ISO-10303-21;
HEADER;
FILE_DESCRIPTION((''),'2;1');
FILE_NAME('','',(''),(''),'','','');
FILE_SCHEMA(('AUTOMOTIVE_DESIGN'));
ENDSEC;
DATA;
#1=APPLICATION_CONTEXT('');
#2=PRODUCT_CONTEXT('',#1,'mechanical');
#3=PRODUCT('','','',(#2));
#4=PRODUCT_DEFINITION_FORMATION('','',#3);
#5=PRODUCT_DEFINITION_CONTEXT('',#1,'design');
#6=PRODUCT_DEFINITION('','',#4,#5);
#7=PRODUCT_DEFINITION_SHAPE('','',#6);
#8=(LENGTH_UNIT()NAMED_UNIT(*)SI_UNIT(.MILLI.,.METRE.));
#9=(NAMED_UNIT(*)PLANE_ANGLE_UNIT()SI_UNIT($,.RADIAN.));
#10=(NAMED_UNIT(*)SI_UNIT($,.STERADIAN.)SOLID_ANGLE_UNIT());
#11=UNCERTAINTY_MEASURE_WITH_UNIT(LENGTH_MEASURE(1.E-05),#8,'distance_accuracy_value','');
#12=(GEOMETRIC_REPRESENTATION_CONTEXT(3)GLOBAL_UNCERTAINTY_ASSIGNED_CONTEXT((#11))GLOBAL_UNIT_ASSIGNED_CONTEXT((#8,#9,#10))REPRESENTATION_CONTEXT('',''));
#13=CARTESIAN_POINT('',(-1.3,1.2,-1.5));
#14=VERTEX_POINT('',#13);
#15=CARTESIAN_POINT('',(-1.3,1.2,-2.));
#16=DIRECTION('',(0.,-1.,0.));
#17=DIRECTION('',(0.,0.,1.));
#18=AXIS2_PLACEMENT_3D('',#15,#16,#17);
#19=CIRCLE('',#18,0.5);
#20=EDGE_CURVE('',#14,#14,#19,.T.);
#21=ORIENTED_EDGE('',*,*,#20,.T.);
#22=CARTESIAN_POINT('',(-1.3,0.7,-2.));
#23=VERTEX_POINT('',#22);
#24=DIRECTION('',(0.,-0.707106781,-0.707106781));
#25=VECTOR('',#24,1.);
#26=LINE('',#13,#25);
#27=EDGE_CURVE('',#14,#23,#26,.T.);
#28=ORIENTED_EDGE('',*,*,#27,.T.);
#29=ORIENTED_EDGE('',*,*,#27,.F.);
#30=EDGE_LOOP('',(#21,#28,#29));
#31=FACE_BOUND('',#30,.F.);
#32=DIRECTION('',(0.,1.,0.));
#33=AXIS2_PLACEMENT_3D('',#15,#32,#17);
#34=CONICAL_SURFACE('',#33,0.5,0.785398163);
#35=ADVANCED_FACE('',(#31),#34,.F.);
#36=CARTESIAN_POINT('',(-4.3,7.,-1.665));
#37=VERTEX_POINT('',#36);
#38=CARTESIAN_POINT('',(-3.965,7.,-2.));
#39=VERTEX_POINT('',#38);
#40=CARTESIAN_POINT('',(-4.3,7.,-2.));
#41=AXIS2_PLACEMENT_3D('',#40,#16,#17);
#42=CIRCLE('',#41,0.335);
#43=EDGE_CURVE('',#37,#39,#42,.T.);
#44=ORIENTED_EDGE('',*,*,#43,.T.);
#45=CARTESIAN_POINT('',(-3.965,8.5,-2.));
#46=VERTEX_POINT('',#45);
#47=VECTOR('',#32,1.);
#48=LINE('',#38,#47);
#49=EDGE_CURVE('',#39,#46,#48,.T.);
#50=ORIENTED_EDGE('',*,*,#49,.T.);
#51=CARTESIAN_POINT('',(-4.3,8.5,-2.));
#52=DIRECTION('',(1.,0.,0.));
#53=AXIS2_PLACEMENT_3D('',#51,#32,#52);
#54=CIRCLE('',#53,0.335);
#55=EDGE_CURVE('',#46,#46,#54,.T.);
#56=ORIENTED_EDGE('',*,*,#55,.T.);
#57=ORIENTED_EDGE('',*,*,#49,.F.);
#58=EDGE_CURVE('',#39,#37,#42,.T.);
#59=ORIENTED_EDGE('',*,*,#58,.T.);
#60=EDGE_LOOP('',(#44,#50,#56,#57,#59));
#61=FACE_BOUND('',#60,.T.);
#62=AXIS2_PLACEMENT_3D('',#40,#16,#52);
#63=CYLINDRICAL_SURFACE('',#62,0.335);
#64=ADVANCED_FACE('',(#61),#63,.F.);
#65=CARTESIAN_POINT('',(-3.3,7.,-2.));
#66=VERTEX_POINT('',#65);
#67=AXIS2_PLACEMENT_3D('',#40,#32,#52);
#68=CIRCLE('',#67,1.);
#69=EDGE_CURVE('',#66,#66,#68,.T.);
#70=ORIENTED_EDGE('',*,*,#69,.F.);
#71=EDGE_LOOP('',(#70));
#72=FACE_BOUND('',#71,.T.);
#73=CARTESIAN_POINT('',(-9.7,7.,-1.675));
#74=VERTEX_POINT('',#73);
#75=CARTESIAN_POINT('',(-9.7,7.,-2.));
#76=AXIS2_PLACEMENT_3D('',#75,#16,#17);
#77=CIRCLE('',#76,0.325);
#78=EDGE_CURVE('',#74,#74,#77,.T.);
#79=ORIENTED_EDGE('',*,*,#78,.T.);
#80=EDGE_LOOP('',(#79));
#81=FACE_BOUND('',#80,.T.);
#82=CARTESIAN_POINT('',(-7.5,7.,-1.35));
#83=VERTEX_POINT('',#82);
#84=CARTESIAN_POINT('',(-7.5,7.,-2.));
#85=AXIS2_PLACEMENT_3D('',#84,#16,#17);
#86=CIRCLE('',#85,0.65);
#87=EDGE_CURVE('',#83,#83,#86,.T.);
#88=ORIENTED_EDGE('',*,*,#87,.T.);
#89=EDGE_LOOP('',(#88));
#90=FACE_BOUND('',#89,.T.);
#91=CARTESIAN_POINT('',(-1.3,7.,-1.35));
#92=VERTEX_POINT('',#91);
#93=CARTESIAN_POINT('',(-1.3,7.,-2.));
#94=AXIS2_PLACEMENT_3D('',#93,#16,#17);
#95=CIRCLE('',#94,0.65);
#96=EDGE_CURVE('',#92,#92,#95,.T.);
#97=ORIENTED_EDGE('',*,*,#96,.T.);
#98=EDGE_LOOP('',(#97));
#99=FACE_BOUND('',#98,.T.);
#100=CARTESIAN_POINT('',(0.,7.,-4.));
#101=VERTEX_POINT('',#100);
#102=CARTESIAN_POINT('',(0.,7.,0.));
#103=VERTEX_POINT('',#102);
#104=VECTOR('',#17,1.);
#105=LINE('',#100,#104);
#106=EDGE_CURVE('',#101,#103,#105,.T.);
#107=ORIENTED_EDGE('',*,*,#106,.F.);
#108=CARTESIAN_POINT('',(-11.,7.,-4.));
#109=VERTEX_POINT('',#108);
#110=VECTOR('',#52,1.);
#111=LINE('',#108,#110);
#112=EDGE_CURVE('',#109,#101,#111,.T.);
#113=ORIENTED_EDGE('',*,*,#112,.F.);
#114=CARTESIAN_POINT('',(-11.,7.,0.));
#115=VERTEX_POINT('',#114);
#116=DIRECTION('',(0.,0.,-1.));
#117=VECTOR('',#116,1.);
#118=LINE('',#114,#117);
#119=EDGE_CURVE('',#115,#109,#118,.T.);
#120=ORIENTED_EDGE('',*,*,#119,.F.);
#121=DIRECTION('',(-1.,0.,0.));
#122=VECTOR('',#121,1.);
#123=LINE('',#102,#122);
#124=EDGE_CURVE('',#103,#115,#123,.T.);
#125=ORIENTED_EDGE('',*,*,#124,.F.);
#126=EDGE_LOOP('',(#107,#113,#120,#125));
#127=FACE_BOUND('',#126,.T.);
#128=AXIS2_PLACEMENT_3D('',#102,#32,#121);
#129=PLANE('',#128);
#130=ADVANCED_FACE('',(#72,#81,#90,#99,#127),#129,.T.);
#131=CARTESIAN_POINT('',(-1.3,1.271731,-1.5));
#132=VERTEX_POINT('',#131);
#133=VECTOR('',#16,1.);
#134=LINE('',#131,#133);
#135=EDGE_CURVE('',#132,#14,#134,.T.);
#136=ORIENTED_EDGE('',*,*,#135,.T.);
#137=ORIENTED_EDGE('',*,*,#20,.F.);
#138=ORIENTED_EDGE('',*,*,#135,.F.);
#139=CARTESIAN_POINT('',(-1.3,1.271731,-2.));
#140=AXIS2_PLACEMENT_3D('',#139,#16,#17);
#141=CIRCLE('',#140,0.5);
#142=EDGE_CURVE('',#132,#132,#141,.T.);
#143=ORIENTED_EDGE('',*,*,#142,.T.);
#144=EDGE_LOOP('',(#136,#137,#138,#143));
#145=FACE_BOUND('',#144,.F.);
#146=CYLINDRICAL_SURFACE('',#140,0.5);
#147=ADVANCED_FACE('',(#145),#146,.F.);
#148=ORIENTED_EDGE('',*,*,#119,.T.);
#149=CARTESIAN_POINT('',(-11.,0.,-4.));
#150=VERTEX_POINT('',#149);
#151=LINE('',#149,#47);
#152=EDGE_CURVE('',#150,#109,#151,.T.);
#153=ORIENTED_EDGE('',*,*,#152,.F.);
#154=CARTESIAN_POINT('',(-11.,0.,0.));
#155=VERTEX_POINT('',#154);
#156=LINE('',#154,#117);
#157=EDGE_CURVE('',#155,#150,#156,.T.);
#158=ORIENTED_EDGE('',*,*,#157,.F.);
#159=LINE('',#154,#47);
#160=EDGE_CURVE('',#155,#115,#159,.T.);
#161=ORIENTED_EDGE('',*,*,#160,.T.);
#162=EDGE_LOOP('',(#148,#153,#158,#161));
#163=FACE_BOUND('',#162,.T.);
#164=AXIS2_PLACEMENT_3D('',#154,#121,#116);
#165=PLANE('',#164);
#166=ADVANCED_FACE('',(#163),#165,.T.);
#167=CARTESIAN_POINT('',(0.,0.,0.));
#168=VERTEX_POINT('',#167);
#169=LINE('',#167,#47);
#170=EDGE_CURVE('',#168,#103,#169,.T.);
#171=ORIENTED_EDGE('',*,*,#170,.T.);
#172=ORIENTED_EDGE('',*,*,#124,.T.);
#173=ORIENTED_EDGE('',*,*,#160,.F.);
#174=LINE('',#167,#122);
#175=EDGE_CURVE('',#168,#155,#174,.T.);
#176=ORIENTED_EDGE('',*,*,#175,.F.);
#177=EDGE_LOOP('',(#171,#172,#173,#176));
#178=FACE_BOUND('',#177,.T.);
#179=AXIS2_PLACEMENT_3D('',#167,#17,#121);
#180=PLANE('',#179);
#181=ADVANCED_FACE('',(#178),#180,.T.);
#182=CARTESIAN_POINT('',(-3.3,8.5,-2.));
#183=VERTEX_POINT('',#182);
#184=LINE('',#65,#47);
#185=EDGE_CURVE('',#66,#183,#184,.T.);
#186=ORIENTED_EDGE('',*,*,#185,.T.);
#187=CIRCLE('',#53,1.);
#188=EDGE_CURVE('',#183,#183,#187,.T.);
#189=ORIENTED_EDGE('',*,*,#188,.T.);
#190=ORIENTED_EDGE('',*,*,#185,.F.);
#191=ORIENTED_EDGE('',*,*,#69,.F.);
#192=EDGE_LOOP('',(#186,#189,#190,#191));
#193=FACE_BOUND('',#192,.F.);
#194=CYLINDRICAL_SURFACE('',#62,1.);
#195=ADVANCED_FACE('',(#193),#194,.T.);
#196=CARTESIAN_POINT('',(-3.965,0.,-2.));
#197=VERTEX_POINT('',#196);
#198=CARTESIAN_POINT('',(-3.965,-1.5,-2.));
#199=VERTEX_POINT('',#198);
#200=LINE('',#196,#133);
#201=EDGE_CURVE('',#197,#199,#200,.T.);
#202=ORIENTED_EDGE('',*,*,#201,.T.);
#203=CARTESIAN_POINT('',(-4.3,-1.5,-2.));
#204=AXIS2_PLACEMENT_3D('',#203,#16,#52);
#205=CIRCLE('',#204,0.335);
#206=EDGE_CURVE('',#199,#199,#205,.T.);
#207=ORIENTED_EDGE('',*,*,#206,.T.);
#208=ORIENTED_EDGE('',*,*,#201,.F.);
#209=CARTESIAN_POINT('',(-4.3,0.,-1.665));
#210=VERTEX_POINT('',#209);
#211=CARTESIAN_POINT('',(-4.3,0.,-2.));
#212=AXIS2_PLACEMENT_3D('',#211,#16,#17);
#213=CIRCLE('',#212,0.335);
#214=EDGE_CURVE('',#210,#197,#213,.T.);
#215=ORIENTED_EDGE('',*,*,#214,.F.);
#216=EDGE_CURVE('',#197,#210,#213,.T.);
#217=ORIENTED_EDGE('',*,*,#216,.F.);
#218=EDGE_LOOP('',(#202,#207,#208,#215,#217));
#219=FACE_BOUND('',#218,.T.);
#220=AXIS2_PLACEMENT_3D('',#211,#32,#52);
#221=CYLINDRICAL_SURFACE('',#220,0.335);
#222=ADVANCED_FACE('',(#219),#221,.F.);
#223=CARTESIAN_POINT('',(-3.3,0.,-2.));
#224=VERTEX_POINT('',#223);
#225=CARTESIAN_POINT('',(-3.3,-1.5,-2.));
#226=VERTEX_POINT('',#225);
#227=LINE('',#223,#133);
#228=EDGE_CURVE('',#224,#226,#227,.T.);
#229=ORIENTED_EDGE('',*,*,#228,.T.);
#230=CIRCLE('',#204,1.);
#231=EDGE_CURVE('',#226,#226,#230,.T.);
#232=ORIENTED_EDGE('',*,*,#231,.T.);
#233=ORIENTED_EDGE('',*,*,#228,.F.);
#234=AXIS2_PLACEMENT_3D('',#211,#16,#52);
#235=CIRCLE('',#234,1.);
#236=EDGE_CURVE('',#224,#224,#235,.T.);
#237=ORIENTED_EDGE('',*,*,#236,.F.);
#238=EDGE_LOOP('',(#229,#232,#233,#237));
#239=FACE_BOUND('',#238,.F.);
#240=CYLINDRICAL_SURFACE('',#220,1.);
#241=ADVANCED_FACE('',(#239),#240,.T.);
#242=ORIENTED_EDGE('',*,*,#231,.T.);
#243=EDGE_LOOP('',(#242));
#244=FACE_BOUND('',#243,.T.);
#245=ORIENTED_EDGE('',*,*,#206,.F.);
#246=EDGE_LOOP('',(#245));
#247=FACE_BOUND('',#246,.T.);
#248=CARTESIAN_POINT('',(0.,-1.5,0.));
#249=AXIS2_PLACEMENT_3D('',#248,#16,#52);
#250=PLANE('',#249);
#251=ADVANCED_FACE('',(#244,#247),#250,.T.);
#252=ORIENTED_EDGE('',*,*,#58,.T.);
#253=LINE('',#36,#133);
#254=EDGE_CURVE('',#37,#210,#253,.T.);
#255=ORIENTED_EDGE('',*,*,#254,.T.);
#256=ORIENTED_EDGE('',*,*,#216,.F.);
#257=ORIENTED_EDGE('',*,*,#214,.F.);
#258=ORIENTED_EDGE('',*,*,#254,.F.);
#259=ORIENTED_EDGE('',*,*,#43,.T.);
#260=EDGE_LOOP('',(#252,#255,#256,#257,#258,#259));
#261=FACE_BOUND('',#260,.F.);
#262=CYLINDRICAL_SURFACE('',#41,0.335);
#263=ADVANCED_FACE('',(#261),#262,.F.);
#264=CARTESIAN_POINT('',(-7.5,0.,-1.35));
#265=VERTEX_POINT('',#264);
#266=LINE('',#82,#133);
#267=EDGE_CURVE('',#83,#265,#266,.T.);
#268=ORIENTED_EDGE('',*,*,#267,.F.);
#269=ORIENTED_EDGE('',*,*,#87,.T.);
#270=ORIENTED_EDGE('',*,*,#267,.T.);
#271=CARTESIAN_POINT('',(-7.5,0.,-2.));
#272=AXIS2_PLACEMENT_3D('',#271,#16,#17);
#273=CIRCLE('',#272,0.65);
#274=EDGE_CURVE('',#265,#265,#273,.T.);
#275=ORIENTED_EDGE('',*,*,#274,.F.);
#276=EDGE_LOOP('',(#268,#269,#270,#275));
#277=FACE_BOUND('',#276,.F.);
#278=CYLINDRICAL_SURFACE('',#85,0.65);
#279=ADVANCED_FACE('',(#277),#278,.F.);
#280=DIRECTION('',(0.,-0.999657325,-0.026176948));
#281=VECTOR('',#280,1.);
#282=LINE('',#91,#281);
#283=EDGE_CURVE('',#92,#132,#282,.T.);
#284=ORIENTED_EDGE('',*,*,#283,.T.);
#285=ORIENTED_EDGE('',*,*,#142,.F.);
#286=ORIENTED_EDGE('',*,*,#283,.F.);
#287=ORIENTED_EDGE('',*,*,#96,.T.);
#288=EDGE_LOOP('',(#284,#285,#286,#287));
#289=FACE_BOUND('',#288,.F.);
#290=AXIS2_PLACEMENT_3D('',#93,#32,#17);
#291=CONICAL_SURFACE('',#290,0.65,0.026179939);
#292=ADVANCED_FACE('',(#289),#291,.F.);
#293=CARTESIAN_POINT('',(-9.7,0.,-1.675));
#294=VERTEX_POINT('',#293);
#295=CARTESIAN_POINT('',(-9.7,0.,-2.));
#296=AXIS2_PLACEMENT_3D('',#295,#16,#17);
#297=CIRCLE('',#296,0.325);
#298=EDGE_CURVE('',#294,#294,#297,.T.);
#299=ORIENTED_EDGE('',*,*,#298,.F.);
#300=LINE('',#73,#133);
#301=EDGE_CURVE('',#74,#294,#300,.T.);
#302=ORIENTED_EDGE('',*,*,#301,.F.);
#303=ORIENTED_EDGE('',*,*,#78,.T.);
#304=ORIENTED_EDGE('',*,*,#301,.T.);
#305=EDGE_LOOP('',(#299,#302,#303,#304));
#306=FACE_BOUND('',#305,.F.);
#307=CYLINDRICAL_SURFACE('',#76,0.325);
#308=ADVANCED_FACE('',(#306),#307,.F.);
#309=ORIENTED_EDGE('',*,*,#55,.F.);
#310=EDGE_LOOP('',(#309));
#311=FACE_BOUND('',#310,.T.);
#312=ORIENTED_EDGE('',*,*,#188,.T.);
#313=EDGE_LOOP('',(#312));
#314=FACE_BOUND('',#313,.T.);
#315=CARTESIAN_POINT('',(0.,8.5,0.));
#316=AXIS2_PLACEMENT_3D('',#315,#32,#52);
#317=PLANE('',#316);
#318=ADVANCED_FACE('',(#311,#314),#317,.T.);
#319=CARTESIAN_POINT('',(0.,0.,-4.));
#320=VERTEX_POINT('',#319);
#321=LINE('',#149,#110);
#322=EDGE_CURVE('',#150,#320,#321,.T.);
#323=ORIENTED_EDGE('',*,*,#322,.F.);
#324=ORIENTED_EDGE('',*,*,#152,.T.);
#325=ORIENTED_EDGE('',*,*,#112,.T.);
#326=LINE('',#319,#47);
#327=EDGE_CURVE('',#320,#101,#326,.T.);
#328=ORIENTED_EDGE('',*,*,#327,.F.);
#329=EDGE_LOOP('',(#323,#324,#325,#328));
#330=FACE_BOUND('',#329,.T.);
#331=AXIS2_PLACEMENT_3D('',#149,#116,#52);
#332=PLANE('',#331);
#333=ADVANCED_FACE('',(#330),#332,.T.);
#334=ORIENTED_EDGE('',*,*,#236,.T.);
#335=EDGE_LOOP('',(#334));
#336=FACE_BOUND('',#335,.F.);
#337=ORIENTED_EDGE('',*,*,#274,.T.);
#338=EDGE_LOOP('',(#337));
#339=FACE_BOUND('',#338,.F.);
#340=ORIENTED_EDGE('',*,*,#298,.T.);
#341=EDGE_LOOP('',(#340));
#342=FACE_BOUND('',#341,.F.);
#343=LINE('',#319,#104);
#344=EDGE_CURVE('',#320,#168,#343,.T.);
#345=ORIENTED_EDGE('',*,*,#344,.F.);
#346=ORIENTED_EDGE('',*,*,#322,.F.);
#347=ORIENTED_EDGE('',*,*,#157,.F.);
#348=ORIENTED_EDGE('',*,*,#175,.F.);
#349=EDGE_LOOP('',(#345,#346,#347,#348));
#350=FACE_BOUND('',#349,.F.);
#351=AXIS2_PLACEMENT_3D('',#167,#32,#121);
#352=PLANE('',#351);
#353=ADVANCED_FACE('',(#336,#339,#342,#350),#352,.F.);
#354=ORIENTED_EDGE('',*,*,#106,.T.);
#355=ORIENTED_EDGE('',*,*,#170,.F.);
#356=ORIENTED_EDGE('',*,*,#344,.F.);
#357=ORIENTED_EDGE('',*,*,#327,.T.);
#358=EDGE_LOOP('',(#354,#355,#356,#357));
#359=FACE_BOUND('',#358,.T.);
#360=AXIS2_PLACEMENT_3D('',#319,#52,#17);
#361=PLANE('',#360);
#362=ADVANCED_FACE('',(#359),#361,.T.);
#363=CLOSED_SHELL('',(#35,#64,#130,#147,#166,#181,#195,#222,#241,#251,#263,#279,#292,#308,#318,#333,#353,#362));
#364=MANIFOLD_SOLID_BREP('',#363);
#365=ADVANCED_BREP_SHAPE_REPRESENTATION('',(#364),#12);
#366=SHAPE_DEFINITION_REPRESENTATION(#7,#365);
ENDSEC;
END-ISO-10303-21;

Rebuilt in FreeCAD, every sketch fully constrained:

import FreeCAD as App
import Part
import Sketcher


def add_polygon(sketch, points):
    """Adds a closed chain of lines whose ends are joined by coincident constraints."""
    first, n = sketch.GeometryCount, len(points)
    for a, b in zip(points, points[1:] + points[:1]):
        sketch.addGeometry(Part.LineSegment(App.Vector(*a, 0), App.Vector(*b, 0)), False)
    for i in range(n):
        sketch.addConstraint(Sketcher.Constraint("Coincident", first + i, 2, first + (i + 1) % n, 1))

doc = App.newDocument("Part")
params = doc.addObject("Spreadsheet::Sheet", "Params")
for row, (alias, value) in enumerate([
    ("sketch1_width", "11 mm"),
    ("sketch1_height", "4 mm"),
    ("pad1_length", "7 mm"),
    ("sketch2_diameter", "0.65 mm"),
    ("hole_diameter", "0.65 mm"),
    ("sketch3_diameter", "1.3 mm"),
    ("hole2_diameter", "1.3 mm"),
    ("sketch4_diameter", "0.67 mm"),
    ("hole3_diameter", "0.67 mm"),
    ("sketch5_diameter", "1 mm"),
    ("hole4_diameter", "1 mm"),
    ("hole4_depth", "5.8 mm"),
    ("hole4_csink_diameter", "1.3 mm"),
    ("sketch6_diameter", "2 mm"),
    ("sketch6_diameter2", "0.67 mm"),
    ("pad2_length", "1.5 mm"),
    ("sketch7_diameter", "2 mm"),
    ("sketch7_diameter2", "0.67 mm"),
    ("pad3_length", "1.5 mm"),
], start=1):
    params.set(f"A{row}", alias)
    params.set(f"B{row}", "=" + value)
    params.setAlias(f"B{row}", alias)

body = doc.addObject("PartDesign::Body", "Body")

sketch1 = doc.addObject("Sketcher::SketchObject", "Sketch")
body.addObject(sketch1)
sketch1.AttachmentSupport = (doc.XZ_Plane, [""])
sketch1.MapMode = "FlatFace"
add_polygon(sketch1, [(-11, 0), (0, 0), (0, -4), (-11, -4)])
sketch1.addConstraint([
    Sketcher.Constraint("Horizontal", 0),
    Sketcher.Constraint("Vertical", 1),
    Sketcher.Constraint("Horizontal", 2),
    Sketcher.Constraint("Vertical", 3),
    Sketcher.Constraint("Coincident", 0, 2, -1, 1),
    Sketcher.Constraint("DistanceX", 0, 1, 0, 2, 11.0),
    Sketcher.Constraint("DistanceY", 1, 2, 1, 1, 4.0),
])
sketch1.setExpression("Constraints[9]", "Params.sketch1_width")
sketch1.setExpression("Constraints[10]", "Params.sketch1_height")
pad1 = doc.addObject("PartDesign::Pad", "Pad")
body.addObject(pad1)
pad1.Profile = sketch1
pad1.setExpression("Length", "Params.pad1_length")
pad1.Reversed = True

sketch2 = doc.addObject("Sketcher::SketchObject", "Sketch001")
body.addObject(sketch2)
sketch2.AttachmentSupport = (doc.XZ_Plane, [""])
sketch2.MapMode = "FlatFace"
sketch2.AttachmentOffset = App.Placement(App.Vector(0, 0, -7), App.Rotation())
sketch2.addGeometry(Part.Circle(App.Vector(-9.7, -2, 0), App.Vector(0, 0, 1), 0.33), False)
sketch2.addConstraint([
    Sketcher.Constraint("Diameter", 0, 0.65),
    Sketcher.Constraint("DistanceY", 0, 3, -1, 1, 2.0),
    Sketcher.Constraint("DistanceX", 0, 3, -1, 1, 9.7),
])
sketch2.setExpression("Constraints[0]", "Params.sketch2_diameter")
doc.recompute()
hole = doc.addObject("PartDesign::Hole", "Hole")
body.addObject(hole)
hole.Profile = sketch2
hole.ThreadType = "None"
hole.setExpression("Diameter", "Params.hole_diameter")
hole.DepthType = "ThroughAll"
hole.Reversed = True

sketch3 = doc.addObject("Sketcher::SketchObject", "Sketch002")
body.addObject(sketch3)
sketch3.AttachmentSupport = (doc.XZ_Plane, [""])
sketch3.MapMode = "FlatFace"
sketch3.AttachmentOffset = App.Placement(App.Vector(0, 0, -7), App.Rotation())
sketch3.addGeometry(Part.Circle(App.Vector(-7.5, -2, 0), App.Vector(0, 0, 1), 0.7), False)
sketch3.addConstraint([
    Sketcher.Constraint("Diameter", 0, 1.3),
    Sketcher.Constraint("DistanceY", 0, 3, -1, 1, 2.0),
    Sketcher.Constraint("DistanceX", 0, 3, -1, 1, 7.5),
])
sketch3.setExpression("Constraints[0]", "Params.sketch3_diameter")
doc.recompute()
hole2 = doc.addObject("PartDesign::Hole", "Hole001")
body.addObject(hole2)
hole2.Profile = sketch3
hole2.ThreadType = "None"
hole2.setExpression("Diameter", "Params.hole2_diameter")
hole2.DepthType = "ThroughAll"
hole2.Reversed = True

sketch4 = doc.addObject("Sketcher::SketchObject", "Sketch003")
body.addObject(sketch4)
sketch4.AttachmentSupport = (doc.XZ_Plane, [""])
sketch4.MapMode = "FlatFace"
sketch4.AttachmentOffset = App.Placement(App.Vector(0, 0, -7), App.Rotation())
sketch4.addGeometry(Part.Circle(App.Vector(-4.3, -2, 0), App.Vector(0, 0, 1), 0.34), False)
sketch4.addConstraint([
    Sketcher.Constraint("Diameter", 0, 0.67),
    Sketcher.Constraint("DistanceY", 0, 3, -1, 1, 2.0),
    Sketcher.Constraint("DistanceX", 0, 3, -1, 1, 4.3),
])
sketch4.setExpression("Constraints[0]", "Params.sketch4_diameter")
doc.recompute()
hole3 = doc.addObject("PartDesign::Hole", "Hole002")
body.addObject(hole3)
hole3.Profile = sketch4
hole3.ThreadType = "None"
hole3.setExpression("Diameter", "Params.hole3_diameter")
hole3.DepthType = "ThroughAll"
hole3.Reversed = True

sketch5 = doc.addObject("Sketcher::SketchObject", "Sketch004")
body.addObject(sketch5)
sketch5.AttachmentSupport = (doc.XZ_Plane, [""])
sketch5.MapMode = "FlatFace"
sketch5.AttachmentOffset = App.Placement(App.Vector(0, 0, -7), App.Rotation())
sketch5.addGeometry(Part.Circle(App.Vector(-1.3, -2, 0), App.Vector(0, 0, 1), 0.5), False)
sketch5.addConstraint([
    Sketcher.Constraint("Diameter", 0, 1.0),
    Sketcher.Constraint("DistanceY", 0, 3, -1, 1, 2.0),
    Sketcher.Constraint("DistanceX", 0, 3, -1, 1, 1.3),
])
sketch5.setExpression("Constraints[0]", "Params.sketch5_diameter")
doc.recompute()
hole4 = doc.addObject("PartDesign::Hole", "Hole003")
body.addObject(hole4)
hole4.Profile = sketch5
hole4.ThreadType = "None"
hole4.setExpression("Diameter", "Params.hole4_diameter")
hole4.DepthType = "Dimension"
hole4.setExpression("Depth", "Params.hole4_depth")
hole4.DrillPoint = "Angled"
hole4.DrillPointAngle = 90
hole4.HoleCutType = "Countersink"
hole4.setExpression("HoleCutDiameter", "Params.hole4_csink_diameter")
hole4.HoleCutCountersinkAngle = 3
hole4.Reversed = True

sketch6 = doc.addObject("Sketcher::SketchObject", "Sketch005")
body.addObject(sketch6)
sketch6.AttachmentSupport = (doc.XZ_Plane, [""])
sketch6.MapMode = "FlatFace"
sketch6.AttachmentOffset = App.Placement(App.Vector(0, 0, -7), App.Rotation())
sketch6.addGeometry([
    Part.Circle(App.Vector(-4.3, -2, 0), App.Vector(0, 0, 1), 1),
    Part.Circle(App.Vector(-4.3, -2, 0), App.Vector(0, 0, 1), 0.34),
], False)
sketch6.addConstraint([
    Sketcher.Constraint("Coincident", 1, 3, 0, 3),
    Sketcher.Constraint("Diameter", 0, 2.0),
    Sketcher.Constraint("DistanceY", 0, 3, -1, 1, 2.0),
    Sketcher.Constraint("Diameter", 1, 0.67),
    Sketcher.Constraint("DistanceX", 0, 3, -1, 1, 4.3),
])
sketch6.setExpression("Constraints[1]", "Params.sketch6_diameter")
sketch6.setExpression("Constraints[3]", "Params.sketch6_diameter2")
pad2 = doc.addObject("PartDesign::Pad", "Pad001")
body.addObject(pad2)
pad2.Profile = sketch6
pad2.setExpression("Length", "Params.pad2_length")
pad2.Reversed = True

sketch7 = doc.addObject("Sketcher::SketchObject", "Sketch006")
body.addObject(sketch7)
sketch7.AttachmentSupport = (doc.XZ_Plane, [""])
sketch7.MapMode = "FlatFace"
sketch7.addGeometry([
    Part.Circle(App.Vector(-4.3, -2, 0), App.Vector(0, 0, 1), 1),
    Part.Circle(App.Vector(-4.3, -2, 0), App.Vector(0, 0, 1), 0.34),
], False)
sketch7.addConstraint([
    Sketcher.Constraint("Coincident", 1, 3, 0, 3),
    Sketcher.Constraint("Diameter", 0, 2.0),
    Sketcher.Constraint("DistanceY", 0, 3, -1, 1, 2.0),
    Sketcher.Constraint("Diameter", 1, 0.67),
    Sketcher.Constraint("DistanceX", 0, 3, -1, 1, 4.3),
])
sketch7.setExpression("Constraints[1]", "Params.sketch7_diameter")
sketch7.setExpression("Constraints[3]", "Params.sketch7_diameter2")
pad3 = doc.addObject("PartDesign::Pad", "Pad002")
body.addObject(pad3)
pad3.Profile = sketch7
pad3.setExpression("Length", "Params.pad3_length")

doc.recompute()
